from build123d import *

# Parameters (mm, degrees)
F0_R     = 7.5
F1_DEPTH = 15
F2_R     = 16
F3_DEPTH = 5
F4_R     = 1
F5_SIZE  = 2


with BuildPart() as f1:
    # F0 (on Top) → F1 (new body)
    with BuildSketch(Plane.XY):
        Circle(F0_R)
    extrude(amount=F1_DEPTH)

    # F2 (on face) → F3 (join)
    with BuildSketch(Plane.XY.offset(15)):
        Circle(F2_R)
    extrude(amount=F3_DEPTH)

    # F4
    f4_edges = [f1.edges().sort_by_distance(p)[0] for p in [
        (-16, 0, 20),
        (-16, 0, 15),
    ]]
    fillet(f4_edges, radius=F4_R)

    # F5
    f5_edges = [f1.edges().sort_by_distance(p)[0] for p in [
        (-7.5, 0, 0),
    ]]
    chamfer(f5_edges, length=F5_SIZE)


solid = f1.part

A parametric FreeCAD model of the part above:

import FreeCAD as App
import Part
import Sketcher
from FreeCAD import Vector


def edges_at(feature, points):
    """Names of the edges that pass closest to the given points."""
    edges = feature.Shape.Edges
    near = lambda p: min(range(len(edges)), key=lambda i: edges[i].distToShape(Part.Vertex(*p))[0])
    return sorted({f"Edge{near(p) + 1}" for p in points})

doc = App.newDocument("Part")
body = doc.addObject("PartDesign::Body", "Body")

sketch1 = body.newObject("Sketcher::SketchObject", "Sketch")
sketch1.AttachmentSupport = (doc.getObject("XY_Plane"), [""])
sketch1.MapMode = "FlatFace"
sketch1.addGeometry(Part.Circle(Vector(0, 0, 0), Vector(0, 0, 1), 8), False)
sketch1.addConstraint([
    Sketcher.Constraint("Coincident", 0, 3, -1, 1),
    Sketcher.Constraint("Diameter", 0, 15.0),
])
pad1 = body.newObject("PartDesign::Pad", "Pad")
pad1.Profile = sketch1
pad1.Length = 15

sketch2 = body.newObject("Sketcher::SketchObject", "Sketch001")
sketch2.AttachmentSupport = (doc.getObject("XY_Plane"), [""])
sketch2.MapMode = "FlatFace"
sketch2.AttachmentOffset = App.Placement(Vector(0, 0, 15), App.Rotation())
sketch2.addGeometry(Part.Circle(Vector(0, 0, 0), Vector(0, 0, 1), 16), False)
sketch2.addConstraint([
    Sketcher.Constraint("Coincident", 0, 3, -1, 1),
    Sketcher.Constraint("Diameter", 0, 32.0),
])
pad2 = body.newObject("PartDesign::Pad", "Pad001")
pad2.Profile = sketch2
pad2.Length = 5
doc.recompute()

fillet = body.newObject("PartDesign::Fillet", "Fillet")
fillet.Base = (pad2, edges_at(pad2, [(-16, 0, 20), (-16, 0, 15)]))
fillet.Radius = 1
doc.recompute()

chamfer = body.newObject("PartDesign::Chamfer", "Chamfer")
chamfer.Base = (fillet, edges_at(fillet, [(-7.5, 0, 0)]))
chamfer.Size = 2

doc.recompute()
